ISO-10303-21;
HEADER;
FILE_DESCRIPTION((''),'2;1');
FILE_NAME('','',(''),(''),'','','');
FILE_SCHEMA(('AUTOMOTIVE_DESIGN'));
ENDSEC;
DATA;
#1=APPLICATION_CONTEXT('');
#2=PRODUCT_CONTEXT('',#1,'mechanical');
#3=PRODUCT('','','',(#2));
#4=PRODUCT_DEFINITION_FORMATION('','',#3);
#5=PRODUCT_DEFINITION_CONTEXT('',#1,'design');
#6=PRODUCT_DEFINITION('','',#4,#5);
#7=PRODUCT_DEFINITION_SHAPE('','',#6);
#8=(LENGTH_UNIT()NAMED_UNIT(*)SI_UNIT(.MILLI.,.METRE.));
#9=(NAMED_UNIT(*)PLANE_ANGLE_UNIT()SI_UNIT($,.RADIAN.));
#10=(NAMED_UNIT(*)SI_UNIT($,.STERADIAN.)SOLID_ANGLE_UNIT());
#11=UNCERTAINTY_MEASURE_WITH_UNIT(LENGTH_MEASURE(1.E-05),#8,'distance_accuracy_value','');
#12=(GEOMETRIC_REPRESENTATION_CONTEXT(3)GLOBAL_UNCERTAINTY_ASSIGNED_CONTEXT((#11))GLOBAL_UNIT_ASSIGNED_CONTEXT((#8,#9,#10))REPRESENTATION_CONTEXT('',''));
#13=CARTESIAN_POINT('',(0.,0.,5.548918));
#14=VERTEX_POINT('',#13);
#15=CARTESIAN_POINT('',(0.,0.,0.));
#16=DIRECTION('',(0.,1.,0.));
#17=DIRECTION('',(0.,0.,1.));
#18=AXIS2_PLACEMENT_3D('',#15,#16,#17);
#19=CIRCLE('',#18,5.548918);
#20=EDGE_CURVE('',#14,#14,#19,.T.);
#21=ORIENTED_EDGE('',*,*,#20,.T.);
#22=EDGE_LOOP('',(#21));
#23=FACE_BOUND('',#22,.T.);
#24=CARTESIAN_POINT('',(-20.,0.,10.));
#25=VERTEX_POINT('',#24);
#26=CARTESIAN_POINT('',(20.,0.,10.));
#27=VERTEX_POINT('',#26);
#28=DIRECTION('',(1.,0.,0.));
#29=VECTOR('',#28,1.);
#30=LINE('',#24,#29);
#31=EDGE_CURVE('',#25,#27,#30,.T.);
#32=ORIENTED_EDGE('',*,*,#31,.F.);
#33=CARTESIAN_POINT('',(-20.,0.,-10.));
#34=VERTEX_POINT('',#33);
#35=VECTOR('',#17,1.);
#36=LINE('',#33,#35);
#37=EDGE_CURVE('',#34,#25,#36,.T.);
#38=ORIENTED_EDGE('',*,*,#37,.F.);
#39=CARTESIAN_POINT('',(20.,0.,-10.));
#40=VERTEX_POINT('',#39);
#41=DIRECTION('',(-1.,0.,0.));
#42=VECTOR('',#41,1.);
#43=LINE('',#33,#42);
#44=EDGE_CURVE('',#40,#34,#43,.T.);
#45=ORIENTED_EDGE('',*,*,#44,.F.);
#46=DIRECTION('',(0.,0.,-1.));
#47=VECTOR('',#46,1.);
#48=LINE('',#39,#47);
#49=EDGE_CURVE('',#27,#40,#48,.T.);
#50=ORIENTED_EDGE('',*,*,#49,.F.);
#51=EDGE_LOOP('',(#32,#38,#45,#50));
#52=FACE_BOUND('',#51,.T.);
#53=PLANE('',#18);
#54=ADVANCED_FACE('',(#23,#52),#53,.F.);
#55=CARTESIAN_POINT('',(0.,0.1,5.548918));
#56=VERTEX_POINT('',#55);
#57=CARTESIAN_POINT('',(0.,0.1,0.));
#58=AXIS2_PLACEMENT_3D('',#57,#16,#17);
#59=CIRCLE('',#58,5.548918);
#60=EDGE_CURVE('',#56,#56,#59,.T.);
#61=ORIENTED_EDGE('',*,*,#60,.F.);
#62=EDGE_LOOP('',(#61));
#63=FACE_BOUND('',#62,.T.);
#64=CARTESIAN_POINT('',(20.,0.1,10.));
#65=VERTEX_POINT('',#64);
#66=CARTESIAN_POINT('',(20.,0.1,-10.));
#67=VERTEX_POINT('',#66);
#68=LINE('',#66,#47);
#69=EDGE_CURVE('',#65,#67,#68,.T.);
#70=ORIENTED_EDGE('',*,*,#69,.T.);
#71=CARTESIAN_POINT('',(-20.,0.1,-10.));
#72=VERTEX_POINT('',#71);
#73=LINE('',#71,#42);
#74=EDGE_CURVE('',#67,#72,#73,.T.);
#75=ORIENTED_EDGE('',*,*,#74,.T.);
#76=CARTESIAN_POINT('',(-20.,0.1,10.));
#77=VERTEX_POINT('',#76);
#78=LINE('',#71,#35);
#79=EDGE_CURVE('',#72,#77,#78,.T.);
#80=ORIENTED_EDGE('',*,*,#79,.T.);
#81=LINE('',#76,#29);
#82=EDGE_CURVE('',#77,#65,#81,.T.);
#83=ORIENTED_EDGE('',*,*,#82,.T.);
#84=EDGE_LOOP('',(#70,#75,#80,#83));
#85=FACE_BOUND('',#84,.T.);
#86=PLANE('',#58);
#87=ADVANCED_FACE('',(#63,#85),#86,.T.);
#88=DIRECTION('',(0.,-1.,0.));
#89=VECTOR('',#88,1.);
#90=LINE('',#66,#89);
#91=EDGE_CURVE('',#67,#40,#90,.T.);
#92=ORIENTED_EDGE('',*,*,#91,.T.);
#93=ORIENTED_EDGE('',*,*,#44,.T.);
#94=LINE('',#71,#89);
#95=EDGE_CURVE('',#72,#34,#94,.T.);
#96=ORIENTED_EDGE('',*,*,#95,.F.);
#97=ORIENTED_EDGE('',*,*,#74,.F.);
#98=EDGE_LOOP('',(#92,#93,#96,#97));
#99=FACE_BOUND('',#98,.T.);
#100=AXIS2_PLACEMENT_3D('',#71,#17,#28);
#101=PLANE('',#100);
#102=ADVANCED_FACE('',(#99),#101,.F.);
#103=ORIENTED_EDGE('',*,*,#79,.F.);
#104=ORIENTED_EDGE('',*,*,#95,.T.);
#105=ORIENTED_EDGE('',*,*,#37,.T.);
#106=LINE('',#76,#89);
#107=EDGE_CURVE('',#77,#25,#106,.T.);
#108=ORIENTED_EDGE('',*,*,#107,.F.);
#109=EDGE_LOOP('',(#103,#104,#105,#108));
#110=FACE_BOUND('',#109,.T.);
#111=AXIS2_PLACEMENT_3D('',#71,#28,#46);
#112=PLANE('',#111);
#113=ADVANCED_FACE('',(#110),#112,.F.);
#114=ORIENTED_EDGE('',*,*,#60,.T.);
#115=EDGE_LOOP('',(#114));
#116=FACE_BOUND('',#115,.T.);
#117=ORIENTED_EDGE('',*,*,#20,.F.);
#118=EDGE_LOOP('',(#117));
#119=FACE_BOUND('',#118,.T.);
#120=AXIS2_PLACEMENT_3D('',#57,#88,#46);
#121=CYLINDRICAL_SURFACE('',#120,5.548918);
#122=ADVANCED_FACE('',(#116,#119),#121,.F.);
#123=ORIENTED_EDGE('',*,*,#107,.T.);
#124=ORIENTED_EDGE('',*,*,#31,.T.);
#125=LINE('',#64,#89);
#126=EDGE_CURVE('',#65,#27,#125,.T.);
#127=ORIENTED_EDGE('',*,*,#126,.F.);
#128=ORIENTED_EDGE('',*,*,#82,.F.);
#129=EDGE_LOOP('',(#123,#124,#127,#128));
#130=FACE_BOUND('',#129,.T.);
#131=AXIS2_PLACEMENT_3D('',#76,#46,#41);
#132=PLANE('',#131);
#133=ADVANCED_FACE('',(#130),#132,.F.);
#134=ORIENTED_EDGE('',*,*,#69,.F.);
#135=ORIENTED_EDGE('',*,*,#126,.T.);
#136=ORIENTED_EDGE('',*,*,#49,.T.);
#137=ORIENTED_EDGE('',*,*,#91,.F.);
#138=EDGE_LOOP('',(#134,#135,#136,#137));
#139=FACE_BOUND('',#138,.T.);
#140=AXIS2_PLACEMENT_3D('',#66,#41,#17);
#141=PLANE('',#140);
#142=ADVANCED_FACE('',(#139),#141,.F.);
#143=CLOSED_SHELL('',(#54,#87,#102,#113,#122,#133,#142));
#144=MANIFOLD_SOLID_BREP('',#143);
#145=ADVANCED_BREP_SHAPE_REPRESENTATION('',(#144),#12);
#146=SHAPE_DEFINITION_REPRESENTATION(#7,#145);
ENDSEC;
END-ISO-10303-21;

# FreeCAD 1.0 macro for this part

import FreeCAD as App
import Part
import Sketcher

V = App.Vector


def add_polygon(sketch, points):
    """Adds a closed chain of lines whose ends are joined by coincident constraints."""
    first, n = sketch.GeometryCount, len(points)
    for a, b in zip(points, points[1:] + points[:1]):
        sketch.addGeometry(Part.LineSegment(App.Vector(*a, 0), App.Vector(*b, 0)), False)
    for i in range(n):
        sketch.addConstraint(Sketcher.Constraint("Coincident", first + i, 2, first + (i + 1) % n, 1))

doc = App.newDocument("Part")
params = doc.addObject("Spreadsheet::Sheet", "Params")
for row, (alias, value) in enumerate([
    ("sketch1_width", "40 mm"),
    ("sketch1_height", "20 mm"),
    ("pad1_length", "0.1 mm"),
], start=1):
    params.set(f"A{row}", alias)
    params.set(f"B{row}", "=" + value)
    params.setAlias(f"B{row}", alias)

body = doc.addObject("PartDesign::Body", "Body")

sketch1 = doc.addObject("Sketcher::SketchObject", "Sketch")
body.addObject(sketch1)
sketch1.AttachmentSupport = (doc.XZ_Plane, [""])
sketch1.MapMode = "FlatFace"
add_polygon(sketch1, [(-20, -10), (-20, 10), (20, 10), (20, -10)])
sketch1.addGeometry(Part.Circle(V(0, 0, 0), V(0, 0, 1), 5.548918), False)
sketch1.addConstraint(Sketcher.Constraint("Vertical", 0))
sketch1.addConstraint(Sketcher.Constraint("Horizontal", 1))
sketch1.addConstraint(Sketcher.Constraint("Vertical", 2))
sketch1.addConstraint(Sketcher.Constraint("Horizontal", 3))
sketch1.addConstraint(Sketcher.Constraint("Coincident", 4, 3, -1, 1))
sketch1.addConstraint(Sketcher.Constraint("Symmetric", 0, 2, 2, 2, -1, 1))
sketch1.addConstraint(Sketcher.Constraint("DistanceX", 1, 1, 1, 2, 40.0))
sketch1.addConstraint(Sketcher.Constraint("DistanceY", 0, 1, 0, 2, 20.0))
sketch1.addConstraint(Sketcher.Constraint("Diameter", 4, 11.097837))
sketch1.setExpression("Constraints[10]", "Params.sketch1_width")
sketch1.setExpression("Constraints[11]", "Params.sketch1_height")
pad1 = doc.addObject("PartDesign::Pad", "Pad")
body.addObject(pad1)
pad1.Profile = sketch1
pad1.setExpression("Length", "Params.pad1_length")
pad1.Reversed = True

doc.recompute()
